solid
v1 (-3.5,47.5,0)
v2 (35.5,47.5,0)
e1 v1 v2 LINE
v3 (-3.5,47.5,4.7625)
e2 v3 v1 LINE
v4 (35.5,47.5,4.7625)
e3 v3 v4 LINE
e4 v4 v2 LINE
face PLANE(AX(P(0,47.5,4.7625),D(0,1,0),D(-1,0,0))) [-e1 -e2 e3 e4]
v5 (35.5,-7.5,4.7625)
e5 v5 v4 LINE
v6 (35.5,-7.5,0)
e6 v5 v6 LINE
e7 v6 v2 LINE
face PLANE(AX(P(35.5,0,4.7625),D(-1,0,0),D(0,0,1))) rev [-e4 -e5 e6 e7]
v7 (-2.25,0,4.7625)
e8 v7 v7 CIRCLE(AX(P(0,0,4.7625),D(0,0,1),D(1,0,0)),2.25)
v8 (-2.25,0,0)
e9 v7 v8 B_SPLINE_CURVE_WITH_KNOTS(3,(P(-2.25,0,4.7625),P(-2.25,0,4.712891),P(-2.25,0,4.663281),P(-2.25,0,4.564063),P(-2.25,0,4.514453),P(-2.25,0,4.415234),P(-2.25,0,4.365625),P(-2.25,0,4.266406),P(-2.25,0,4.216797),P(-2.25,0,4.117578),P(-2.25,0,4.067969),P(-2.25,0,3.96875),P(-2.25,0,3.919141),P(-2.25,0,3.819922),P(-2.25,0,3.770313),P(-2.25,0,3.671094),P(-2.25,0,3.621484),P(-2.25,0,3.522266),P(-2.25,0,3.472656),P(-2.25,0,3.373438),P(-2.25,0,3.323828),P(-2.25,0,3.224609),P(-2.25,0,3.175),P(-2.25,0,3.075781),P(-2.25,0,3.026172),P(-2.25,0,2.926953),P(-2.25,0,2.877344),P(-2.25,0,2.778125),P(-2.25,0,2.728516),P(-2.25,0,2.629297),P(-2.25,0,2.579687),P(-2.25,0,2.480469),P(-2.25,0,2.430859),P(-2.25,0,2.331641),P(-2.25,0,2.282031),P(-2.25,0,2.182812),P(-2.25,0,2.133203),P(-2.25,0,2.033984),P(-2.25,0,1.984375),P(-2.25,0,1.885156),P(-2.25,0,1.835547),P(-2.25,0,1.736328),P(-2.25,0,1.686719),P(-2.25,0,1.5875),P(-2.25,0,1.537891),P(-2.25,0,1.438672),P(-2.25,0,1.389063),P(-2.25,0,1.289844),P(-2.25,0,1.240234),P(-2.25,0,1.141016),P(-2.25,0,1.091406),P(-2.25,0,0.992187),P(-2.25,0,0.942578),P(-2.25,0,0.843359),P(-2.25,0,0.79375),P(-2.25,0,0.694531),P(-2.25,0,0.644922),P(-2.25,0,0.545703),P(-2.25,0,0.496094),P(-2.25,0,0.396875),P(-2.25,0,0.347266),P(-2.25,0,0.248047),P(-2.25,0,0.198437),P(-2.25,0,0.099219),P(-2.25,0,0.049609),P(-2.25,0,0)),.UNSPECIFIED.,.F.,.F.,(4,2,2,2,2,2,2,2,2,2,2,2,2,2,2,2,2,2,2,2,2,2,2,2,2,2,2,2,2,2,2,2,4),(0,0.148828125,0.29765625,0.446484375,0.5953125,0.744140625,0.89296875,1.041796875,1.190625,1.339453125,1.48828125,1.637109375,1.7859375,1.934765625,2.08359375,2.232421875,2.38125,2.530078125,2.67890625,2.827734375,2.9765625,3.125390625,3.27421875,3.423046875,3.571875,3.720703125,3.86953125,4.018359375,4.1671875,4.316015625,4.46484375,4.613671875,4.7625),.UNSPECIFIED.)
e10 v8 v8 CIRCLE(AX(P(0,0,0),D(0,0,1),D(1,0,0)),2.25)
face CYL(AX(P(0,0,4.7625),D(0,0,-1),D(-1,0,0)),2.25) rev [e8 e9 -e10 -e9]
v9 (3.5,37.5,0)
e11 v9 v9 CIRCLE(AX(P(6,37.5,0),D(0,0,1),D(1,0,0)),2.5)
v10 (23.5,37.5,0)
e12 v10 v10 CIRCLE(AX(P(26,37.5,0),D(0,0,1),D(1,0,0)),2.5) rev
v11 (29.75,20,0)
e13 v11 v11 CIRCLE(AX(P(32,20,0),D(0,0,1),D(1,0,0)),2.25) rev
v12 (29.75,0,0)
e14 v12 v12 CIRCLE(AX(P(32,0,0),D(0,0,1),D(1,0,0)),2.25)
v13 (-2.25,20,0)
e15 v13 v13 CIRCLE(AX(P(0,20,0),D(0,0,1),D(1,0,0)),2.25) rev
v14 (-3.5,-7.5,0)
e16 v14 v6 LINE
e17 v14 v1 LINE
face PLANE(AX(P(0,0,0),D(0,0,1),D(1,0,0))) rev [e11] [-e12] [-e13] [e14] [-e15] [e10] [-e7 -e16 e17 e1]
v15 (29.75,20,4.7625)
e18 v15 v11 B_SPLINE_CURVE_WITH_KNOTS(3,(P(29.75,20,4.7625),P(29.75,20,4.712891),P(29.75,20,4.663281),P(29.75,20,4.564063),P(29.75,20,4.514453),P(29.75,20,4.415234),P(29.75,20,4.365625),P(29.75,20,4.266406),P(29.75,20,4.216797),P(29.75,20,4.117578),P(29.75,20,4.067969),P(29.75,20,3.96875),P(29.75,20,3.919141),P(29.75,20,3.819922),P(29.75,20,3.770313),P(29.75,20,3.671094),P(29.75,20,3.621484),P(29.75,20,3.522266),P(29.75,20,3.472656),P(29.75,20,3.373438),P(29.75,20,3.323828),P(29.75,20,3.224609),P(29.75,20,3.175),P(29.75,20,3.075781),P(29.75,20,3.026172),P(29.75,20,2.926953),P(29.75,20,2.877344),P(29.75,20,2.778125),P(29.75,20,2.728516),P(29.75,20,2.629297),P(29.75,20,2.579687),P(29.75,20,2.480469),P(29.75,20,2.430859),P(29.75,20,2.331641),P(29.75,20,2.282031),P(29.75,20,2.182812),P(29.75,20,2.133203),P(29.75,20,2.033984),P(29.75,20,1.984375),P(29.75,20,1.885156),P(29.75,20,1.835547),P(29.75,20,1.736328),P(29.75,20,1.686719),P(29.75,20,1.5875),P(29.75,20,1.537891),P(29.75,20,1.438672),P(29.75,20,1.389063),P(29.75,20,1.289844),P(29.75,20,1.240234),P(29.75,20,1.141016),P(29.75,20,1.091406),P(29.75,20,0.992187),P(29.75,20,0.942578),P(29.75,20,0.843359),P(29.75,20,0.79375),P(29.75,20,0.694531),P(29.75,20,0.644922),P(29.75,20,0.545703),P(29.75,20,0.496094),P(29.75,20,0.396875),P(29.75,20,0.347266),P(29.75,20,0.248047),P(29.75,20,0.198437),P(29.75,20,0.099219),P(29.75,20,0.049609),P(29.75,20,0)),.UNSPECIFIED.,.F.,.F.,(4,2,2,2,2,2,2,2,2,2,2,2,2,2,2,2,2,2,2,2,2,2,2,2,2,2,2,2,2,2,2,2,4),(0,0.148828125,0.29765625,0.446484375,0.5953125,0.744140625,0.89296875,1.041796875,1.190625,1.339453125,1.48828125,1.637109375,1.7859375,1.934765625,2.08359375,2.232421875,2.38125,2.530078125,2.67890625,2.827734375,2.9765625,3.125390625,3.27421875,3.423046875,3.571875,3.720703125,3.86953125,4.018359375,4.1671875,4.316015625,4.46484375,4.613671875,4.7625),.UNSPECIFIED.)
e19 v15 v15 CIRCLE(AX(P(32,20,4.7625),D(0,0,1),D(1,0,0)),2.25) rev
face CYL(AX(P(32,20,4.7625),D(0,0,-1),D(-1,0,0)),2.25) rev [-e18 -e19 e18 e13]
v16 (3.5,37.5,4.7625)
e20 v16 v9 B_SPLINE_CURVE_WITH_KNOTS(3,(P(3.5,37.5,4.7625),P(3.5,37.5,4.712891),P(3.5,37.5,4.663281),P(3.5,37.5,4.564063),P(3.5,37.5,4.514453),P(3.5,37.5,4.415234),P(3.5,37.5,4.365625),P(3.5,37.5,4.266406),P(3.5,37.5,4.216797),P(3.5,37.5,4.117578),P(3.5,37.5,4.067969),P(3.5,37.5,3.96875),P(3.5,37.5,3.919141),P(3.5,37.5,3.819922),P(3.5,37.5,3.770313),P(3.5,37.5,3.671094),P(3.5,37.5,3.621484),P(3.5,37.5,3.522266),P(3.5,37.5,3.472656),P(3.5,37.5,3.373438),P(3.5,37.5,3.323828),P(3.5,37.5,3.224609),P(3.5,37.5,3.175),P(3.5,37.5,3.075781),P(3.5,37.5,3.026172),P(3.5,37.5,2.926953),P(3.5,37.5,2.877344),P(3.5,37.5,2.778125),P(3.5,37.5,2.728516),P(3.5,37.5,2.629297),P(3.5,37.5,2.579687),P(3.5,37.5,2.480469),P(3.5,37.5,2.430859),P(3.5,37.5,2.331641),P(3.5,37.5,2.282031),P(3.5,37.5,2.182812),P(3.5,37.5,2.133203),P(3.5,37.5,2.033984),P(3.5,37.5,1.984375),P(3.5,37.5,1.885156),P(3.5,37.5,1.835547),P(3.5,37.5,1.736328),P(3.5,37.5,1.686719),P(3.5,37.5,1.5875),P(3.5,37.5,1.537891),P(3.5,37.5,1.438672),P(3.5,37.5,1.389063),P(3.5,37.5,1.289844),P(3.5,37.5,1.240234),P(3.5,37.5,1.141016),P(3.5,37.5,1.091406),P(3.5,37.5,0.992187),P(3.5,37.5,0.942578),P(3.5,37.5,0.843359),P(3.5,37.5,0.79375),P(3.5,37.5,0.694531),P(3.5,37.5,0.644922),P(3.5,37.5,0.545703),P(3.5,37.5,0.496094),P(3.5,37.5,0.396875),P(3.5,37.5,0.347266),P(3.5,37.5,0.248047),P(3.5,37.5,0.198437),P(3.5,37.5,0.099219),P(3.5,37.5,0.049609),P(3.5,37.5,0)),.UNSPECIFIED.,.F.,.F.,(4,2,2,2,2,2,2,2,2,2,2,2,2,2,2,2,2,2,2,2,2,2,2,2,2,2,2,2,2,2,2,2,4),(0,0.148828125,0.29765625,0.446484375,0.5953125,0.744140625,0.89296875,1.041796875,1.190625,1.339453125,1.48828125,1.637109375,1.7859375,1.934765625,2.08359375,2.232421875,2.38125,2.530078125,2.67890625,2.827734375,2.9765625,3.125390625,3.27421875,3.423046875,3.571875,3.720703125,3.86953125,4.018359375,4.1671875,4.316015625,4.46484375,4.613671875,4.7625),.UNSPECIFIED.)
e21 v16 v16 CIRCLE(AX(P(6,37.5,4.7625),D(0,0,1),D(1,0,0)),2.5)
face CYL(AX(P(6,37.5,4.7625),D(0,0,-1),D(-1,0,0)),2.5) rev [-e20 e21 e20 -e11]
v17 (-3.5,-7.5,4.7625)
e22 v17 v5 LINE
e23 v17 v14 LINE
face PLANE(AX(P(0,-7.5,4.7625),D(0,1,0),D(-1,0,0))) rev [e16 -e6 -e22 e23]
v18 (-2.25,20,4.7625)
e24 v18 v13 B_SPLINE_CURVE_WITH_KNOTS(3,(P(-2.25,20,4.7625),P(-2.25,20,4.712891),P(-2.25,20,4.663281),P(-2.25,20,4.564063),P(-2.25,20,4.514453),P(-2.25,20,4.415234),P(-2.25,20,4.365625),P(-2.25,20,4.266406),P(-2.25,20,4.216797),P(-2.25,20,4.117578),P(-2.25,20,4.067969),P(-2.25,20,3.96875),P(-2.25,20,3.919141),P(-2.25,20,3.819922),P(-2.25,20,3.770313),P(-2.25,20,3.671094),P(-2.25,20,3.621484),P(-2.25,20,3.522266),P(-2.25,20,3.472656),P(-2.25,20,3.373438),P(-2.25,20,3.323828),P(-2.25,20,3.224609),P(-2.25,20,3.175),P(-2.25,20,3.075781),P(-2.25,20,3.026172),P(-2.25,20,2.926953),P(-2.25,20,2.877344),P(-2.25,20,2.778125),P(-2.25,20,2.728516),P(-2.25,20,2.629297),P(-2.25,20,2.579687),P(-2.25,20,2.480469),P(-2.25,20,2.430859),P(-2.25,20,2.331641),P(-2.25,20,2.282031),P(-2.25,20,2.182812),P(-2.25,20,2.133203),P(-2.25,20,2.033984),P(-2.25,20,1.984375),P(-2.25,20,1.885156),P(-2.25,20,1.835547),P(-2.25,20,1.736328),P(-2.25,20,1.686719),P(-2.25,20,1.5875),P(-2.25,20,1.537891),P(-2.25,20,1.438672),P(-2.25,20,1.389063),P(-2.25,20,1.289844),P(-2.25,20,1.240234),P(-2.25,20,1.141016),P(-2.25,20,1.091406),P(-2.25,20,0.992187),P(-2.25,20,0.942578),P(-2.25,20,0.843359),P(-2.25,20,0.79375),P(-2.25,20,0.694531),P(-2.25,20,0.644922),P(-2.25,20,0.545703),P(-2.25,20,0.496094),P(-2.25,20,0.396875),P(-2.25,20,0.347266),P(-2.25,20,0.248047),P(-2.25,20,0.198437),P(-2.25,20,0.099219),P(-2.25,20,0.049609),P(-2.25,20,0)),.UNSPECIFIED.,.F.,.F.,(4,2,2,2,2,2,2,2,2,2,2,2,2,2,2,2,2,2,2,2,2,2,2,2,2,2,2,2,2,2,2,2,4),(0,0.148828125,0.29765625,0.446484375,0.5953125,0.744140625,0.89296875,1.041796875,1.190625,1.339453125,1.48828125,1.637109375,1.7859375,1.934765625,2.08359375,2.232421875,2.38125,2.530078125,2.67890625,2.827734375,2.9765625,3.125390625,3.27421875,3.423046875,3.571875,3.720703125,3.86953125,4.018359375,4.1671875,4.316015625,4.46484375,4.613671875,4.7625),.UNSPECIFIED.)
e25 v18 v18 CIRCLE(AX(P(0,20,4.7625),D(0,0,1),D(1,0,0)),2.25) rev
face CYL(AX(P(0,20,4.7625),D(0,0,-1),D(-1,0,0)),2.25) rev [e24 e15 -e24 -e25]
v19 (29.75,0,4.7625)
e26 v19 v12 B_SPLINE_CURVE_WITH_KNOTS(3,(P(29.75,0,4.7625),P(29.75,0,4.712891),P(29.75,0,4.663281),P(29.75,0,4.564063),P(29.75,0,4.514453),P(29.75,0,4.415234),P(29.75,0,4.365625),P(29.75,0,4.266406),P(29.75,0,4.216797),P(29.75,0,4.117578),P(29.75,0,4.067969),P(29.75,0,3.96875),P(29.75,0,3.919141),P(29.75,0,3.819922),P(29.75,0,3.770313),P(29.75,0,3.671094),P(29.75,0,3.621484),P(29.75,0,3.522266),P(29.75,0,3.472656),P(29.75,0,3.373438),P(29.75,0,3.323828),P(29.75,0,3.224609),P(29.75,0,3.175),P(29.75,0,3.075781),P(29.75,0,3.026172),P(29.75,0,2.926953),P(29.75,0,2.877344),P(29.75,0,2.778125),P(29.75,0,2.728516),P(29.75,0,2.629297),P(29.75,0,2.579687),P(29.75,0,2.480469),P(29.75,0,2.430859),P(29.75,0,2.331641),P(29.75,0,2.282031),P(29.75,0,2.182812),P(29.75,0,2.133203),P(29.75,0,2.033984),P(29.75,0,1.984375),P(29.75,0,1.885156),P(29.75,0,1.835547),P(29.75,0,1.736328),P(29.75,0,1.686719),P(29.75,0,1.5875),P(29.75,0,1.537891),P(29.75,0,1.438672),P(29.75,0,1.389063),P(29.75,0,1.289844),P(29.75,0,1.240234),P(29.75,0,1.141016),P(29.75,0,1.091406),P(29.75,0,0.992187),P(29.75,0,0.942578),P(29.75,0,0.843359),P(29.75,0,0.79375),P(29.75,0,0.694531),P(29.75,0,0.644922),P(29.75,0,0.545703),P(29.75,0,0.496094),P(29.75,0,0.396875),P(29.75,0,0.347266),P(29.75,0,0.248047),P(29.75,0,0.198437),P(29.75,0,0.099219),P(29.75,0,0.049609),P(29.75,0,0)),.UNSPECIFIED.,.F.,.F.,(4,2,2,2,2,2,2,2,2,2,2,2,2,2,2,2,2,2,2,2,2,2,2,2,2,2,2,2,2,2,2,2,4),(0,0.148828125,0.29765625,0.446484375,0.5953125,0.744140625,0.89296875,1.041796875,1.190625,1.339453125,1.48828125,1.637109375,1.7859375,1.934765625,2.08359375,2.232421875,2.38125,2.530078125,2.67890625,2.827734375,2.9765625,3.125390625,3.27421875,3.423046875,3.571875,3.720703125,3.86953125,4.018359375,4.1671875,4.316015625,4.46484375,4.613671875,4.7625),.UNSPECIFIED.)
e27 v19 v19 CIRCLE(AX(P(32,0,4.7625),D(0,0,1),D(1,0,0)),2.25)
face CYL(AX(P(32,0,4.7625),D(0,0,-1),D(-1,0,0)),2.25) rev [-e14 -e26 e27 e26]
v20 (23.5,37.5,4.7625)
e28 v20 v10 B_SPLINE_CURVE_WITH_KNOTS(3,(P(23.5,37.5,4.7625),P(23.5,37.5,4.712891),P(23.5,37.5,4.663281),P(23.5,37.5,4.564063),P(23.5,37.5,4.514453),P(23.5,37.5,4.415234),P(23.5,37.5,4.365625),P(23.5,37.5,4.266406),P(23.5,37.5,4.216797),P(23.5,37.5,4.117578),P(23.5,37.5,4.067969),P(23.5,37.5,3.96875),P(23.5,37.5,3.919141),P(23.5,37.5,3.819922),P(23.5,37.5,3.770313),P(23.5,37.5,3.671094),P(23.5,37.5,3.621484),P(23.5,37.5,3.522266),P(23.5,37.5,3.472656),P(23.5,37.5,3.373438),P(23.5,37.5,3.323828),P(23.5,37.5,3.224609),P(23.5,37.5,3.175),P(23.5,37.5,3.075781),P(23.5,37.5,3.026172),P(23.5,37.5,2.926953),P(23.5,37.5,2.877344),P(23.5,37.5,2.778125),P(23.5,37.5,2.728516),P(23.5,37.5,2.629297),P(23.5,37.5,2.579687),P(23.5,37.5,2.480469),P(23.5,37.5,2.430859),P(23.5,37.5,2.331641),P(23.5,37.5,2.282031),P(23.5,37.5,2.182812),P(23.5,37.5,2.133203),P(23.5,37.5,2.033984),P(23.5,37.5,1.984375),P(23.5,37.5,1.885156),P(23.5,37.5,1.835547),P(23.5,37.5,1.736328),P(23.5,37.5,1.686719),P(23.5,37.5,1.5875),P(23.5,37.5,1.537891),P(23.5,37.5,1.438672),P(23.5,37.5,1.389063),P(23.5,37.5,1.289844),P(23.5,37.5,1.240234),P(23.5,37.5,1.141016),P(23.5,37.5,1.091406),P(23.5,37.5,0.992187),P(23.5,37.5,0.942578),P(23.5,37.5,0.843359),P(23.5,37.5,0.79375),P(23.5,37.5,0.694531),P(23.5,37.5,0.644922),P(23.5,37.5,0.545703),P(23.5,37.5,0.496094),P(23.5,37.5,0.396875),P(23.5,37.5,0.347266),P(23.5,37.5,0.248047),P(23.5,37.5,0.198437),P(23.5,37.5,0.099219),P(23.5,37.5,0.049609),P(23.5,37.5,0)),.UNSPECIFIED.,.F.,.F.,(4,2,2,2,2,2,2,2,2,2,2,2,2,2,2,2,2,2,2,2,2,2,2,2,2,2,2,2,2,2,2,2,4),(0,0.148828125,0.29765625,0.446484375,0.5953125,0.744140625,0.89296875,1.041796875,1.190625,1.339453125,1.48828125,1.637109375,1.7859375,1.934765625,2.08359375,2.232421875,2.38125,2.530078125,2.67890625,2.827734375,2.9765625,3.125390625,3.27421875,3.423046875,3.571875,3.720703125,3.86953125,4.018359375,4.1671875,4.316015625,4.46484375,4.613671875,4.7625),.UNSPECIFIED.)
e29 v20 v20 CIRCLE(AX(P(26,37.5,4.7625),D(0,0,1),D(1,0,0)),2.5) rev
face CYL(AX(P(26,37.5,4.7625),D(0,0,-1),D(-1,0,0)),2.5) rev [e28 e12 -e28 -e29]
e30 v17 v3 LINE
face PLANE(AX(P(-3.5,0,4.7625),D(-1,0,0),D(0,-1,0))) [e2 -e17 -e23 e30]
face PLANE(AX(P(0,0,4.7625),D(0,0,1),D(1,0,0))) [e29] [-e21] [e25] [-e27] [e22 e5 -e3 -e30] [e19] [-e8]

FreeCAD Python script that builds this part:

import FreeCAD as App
import Part
import Sketcher
Q = App.Units.Quantity


def add_polygon(sketch, points):
    """Adds a closed chain of lines whose ends are joined by coincident constraints."""
    first, n = sketch.GeometryCount, len(points)
    for a, b in zip(points, points[1:] + points[:1]):
        sketch.addGeometry(Part.LineSegment(App.Vector(*a, 0), App.Vector(*b, 0)), False)
    for i in range(n):
        sketch.addConstraint(Sketcher.Constraint("Coincident", first + i, 2, first + (i + 1) % n, 1))

doc = App.newDocument("Part")
body = doc.addObject("PartDesign::Body", "Body")

sketch1 = doc.addObject("Sketcher::SketchObject", "Sketch")
body.addObject(sketch1)
sketch1.AttachmentSupport = (doc.XY_Plane, [""])
sketch1.MapMode = "FlatFace"
add_polygon(sketch1, [(-3.5, -7.5), (35.5, -7.5), (35.5, 47.5), (-3.5, 47.5)])
sketch1.addGeometry(Part.Circle(App.Vector(6, 37.5, 0), App.Vector(0, 0, 1), 2.5), False)
sketch1.addGeometry(Part.Circle(App.Vector(26, 37.5, 0), App.Vector(0, 0, 1), 2.5), False)
sketch1.addGeometry(Part.Circle(App.Vector(0, 0, 0), App.Vector(0, 0, 1), 2.2), False)
sketch1.addGeometry(Part.Circle(App.Vector(32, 0, 0), App.Vector(0, 0, 1), 2.2), False)
sketch1.addGeometry(Part.Circle(App.Vector(0, 20, 0), App.Vector(0, 0, 1), 2.2), False)
sketch1.addGeometry(Part.Circle(App.Vector(32, 20, 0), App.Vector(0, 0, 1), 2.2), False)
sketch1.addConstraint([
    Sketcher.Constraint("Horizontal", 0),
    Sketcher.Constraint("Vertical", 1),
    Sketcher.Constraint("Horizontal", 2),
    Sketcher.Constraint("Vertical", 3),
    Sketcher.Constraint("Coincident", 6, 3, -1, 1),
    Sketcher.Constraint("Equal", 4, 5),
    Sketcher.Constraint("Equal", 6, 7),
    Sketcher.Constraint("Equal", 7, 8),
    Sketcher.Constraint("Equal", 8, 9),
    Sketcher.Constraint("PointOnObject", 7, 3, -1),
    Sketcher.Constraint("PointOnObject", 8, 3, -2),
    Sketcher.Constraint("Horizontal", 4, 3, 5, 3),
    Sketcher.Constraint("Horizontal", 8, 3, 9, 3),
    Sketcher.Constraint("Vertical", 7, 3, 9, 3),
    Sketcher.Constraint("Diameter", 4, Q("5 mm")),
    Sketcher.Constraint("Diameter", 6, Q("4.5 mm")),
    Sketcher.Constraint("DistanceX", 0, 1, 0, 2, Q("39 mm")),
    Sketcher.Constraint("DistanceY", 1, 1, 1, 2, Q("55 mm")),
    Sketcher.Constraint("DistanceX", -1, 1, 4, 3, Q("6 mm")),
    Sketcher.Constraint("DistanceX", -1, 1, 5, 3, Q("26 mm")),
    Sketcher.Constraint("DistanceX", -1, 1, 7, 3, Q("32 mm")),
    Sketcher.Constraint("DistanceY", -1, 1, 8, 3, Q("20 mm")),
    Sketcher.Constraint("DistanceY", 0, 2, 5, 3, Q("45 mm")),
    Sketcher.Constraint("DistanceY", -1, 1, 4, 3, Q("37.5 mm")),
    Sketcher.Constraint("DistanceX", -1, 1, 0, 2, Q("35.5 mm")),
])
pad1 = doc.addObject("PartDesign::Pad", "Pad")
body.addObject(pad1)
pad1.Profile = sketch1
pad1.Length = 4.7625

doc.recompute()
